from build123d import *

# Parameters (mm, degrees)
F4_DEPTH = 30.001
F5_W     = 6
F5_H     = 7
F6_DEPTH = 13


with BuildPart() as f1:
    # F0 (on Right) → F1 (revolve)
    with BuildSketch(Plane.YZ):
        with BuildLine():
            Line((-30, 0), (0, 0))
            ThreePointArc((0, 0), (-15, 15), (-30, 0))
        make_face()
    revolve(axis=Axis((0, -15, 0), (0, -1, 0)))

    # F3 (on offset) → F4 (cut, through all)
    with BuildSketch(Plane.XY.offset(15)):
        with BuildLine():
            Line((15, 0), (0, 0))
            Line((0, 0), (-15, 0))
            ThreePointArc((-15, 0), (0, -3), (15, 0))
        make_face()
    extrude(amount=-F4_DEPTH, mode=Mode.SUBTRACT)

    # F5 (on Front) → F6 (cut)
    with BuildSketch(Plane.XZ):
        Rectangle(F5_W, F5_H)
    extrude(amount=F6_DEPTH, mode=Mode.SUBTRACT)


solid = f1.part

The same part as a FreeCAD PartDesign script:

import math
import FreeCAD as App
import Part
import Sketcher

V = App.Vector
Q = App.Units.Quantity


def add_polygon(sketch, points):
    """Adds a closed chain of lines whose ends are joined by coincident constraints."""
    first, n = sketch.GeometryCount, len(points)
    for a, b in zip(points, points[1:] + points[:1]):
        sketch.addGeometry(Part.LineSegment(App.Vector(*a, 0), App.Vector(*b, 0)), False)
    for i in range(n):
        sketch.addConstraint(Sketcher.Constraint("Coincident", first + i, 2, first + (i + 1) % n, 1))

doc = App.newDocument("Part")
body = doc.addObject("PartDesign::Body", "Body")

# Sketch on YZ plane
sketch1 = body.newObject("Sketcher::SketchObject", "Sketch")
sketch1.AttachmentSupport = (doc.getObject("YZ_Plane"), [""])
sketch1.MapMode = "FlatFace"
sketch1.addGeometry([
    Part.LineSegment(V(-30, 0, 0), V(0, 0, 0)),
    Part.ArcOfCircle(Part.Circle(V(-15, 0, 0), V(0, 0, 1), 15), math.radians(0), math.radians(180)),
], False)
sketch1.addConstraint([
    Sketcher.Constraint("Coincident", 0, 1, 1, 2),
    Sketcher.Constraint("Coincident", 1, 1, 0, 2),
    Sketcher.Constraint("Horizontal", 0),
    Sketcher.Constraint("Coincident", 1, 1, -1, 1),
    Sketcher.Constraint("PointOnObject", 1, 3, -1),
    Sketcher.Constraint("Radius", 1, Q("15 mm")),
])
revolution = body.newObject("PartDesign::Revolution", "Revolution")
revolution.Profile = sketch1
revolution.ReferenceAxis = (sketch1, ["H_Axis"])
revolution.Angle = 360

# Sketch on XY plane
sketch2 = body.newObject("Sketcher::SketchObject", "Sketch001")
sketch2.AttachmentSupport = (doc.getObject("XY_Plane"), [""])
sketch2.MapMode = "FlatFace"
sketch2.AttachmentOffset = App.Placement(V(0, 0, 15), App.Rotation())
sketch2.addGeometry([
    Part.LineSegment(V(15, 0, 0), V(-15, 0, 0)),
    Part.ArcOfCircle(Part.Circle(V(0, 36, 0), V(0, 0, 1), 39), math.radians(-113), math.radians(-67)),
], False)
sketch2.addConstraint([
    Sketcher.Constraint("Coincident", 0, 1, 1, 2),
    Sketcher.Constraint("Coincident", 1, 1, 0, 2),
    Sketcher.Constraint("Horizontal", 0),
    Sketcher.Constraint("Symmetric", 0, 1, 1, 1, -1, 1),
    Sketcher.Constraint("Radius", 1, Q("39 mm")),
    Sketcher.Constraint("DistanceX", 0, 2, 0, 1, Q("30 mm")),
])
pocket1 = body.newObject("PartDesign::Pocket", "Pocket")
pocket1.Profile = sketch2
pocket1.Type = "ThroughAll"

# Sketch on XZ plane
sketch3 = body.newObject("Sketcher::SketchObject", "Sketch002")
sketch3.AttachmentSupport = (doc.getObject("XZ_Plane"), [""])
sketch3.MapMode = "FlatFace"
add_polygon(sketch3, [(-3, 4), (-3, -4), (3, -4), (3, 4)])  # lines 0-3
sketch3.addConstraint([
    Sketcher.Constraint("Vertical", 0),
    Sketcher.Constraint("Horizontal", 1),
    Sketcher.Constraint("Vertical", 2),
    Sketcher.Constraint("Horizontal", 3),
    Sketcher.Constraint("Symmetric", 0, 2, 2, 2, -1, 1),
    Sketcher.Constraint("DistanceX", 1, 1, 1, 2, Q("6 mm")),
    Sketcher.Constraint("DistanceY", 0, 2, 0, 1, Q("7 mm")),
])
pocket2 = body.newObject("PartDesign::Pocket", "Pocket001")
pocket2.Profile = sketch3
pocket2.Length = 13
pocket2.Reversed = True

doc.recompute()
